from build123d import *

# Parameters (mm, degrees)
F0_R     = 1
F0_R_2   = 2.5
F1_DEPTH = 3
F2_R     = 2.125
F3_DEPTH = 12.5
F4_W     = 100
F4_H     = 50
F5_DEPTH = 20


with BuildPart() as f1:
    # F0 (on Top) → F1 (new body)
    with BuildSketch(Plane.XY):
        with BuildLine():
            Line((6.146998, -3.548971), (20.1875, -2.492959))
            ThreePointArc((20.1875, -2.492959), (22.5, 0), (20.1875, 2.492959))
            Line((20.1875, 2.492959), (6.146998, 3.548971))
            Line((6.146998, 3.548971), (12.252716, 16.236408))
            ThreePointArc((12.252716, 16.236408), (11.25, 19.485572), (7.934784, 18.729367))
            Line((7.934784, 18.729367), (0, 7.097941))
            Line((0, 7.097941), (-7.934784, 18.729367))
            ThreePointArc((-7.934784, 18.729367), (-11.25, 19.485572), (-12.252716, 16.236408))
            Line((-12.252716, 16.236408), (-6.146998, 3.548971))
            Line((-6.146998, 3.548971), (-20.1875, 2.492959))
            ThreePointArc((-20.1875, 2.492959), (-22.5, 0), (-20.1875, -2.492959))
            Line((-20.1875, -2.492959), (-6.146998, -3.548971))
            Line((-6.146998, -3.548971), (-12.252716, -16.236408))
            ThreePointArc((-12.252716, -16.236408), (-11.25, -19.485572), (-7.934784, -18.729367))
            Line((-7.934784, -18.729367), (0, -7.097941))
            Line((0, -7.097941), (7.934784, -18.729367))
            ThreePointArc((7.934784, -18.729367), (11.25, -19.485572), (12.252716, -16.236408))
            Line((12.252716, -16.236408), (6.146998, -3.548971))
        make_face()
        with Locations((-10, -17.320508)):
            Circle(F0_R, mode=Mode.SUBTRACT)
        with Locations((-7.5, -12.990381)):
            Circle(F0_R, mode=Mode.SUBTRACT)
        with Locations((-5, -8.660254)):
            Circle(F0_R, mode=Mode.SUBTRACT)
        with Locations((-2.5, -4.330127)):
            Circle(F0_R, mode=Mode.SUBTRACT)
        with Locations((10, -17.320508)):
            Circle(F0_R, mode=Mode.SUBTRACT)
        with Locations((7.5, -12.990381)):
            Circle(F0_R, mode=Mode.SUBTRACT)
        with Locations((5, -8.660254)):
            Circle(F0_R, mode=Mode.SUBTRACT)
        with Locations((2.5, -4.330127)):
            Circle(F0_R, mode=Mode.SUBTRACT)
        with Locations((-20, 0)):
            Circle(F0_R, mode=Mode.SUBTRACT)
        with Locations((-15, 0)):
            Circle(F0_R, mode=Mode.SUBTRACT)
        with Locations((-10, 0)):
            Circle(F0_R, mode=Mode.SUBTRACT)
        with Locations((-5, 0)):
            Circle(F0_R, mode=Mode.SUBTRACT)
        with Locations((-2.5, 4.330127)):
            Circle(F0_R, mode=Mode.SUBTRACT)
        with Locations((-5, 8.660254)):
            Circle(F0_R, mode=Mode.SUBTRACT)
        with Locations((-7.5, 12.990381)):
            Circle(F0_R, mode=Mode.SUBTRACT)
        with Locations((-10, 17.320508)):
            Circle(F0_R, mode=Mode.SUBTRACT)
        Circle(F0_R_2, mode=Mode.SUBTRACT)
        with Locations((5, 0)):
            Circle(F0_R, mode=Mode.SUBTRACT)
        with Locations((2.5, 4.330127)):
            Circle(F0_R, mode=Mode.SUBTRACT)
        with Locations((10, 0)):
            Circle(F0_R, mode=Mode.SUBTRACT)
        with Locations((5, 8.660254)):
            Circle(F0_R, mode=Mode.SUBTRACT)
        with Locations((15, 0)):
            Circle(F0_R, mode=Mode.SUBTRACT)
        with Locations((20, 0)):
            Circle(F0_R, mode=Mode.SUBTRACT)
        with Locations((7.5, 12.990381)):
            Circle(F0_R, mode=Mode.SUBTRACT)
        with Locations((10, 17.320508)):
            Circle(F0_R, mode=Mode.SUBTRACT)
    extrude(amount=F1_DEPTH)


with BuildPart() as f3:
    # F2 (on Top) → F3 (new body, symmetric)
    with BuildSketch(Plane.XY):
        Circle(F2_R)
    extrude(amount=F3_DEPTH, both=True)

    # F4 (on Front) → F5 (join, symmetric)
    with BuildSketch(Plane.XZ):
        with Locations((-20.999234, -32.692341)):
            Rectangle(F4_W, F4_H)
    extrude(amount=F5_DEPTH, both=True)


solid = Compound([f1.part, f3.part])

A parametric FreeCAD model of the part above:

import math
import FreeCAD as App
import Part
import Sketcher

V = App.Vector


def add_polygon(sketch, points):
    """Adds a closed chain of lines whose ends are joined by coincident constraints."""
    first, n = sketch.GeometryCount, len(points)
    for a, b in zip(points, points[1:] + points[:1]):
        sketch.addGeometry(Part.LineSegment(App.Vector(*a, 0), App.Vector(*b, 0)), False)
    for i in range(n):
        sketch.addConstraint(Sketcher.Constraint("Coincident", first + i, 2, first + (i + 1) % n, 1))

doc = App.newDocument("Part")
body = doc.addObject("PartDesign::Body", "Body")

sketch1 = doc.addObject("Sketcher::SketchObject", "Sketch")
body.addObject(sketch1)
sketch1.AttachmentSupport = (doc.XY_Plane, [""])
sketch1.MapMode = "FlatFace"
sketch1.addGeometry([
    Part.LineSegment(V(6.146998, -3.548971, 0), V(20.1875, -2.492959, 0)),
    Part.ArcOfCircle(Part.Circle(V(20, 0, 0), V(0, 0, 1), 2.5), math.radians(-85.698774), math.radians(85.698774)),
    Part.LineSegment(V(20.1875, 2.492959, 0), V(6.146998, 3.548971, 0)),
    Part.LineSegment(V(6.146998, 3.548971, 0), V(12.252716, 16.236408, 0)),
    Part.ArcOfCircle(Part.Circle(V(10, 17.320508, 0), V(0, 0, 1), 2.5), math.radians(-25.698785), math.radians(145.698789)),
    Part.LineSegment(V(7.934784, 18.729367, 0), V(0, 7.097941, 0)),
    Part.LineSegment(V(0, 7.097941, 0), V(-7.934784, 18.729367, 0)),
    Part.ArcOfCircle(Part.Circle(V(-10, 17.320508, 0), V(0, 0, 1), 2.5), math.radians(34.301211), math.radians(205.698785)),
    Part.LineSegment(V(-12.252716, 16.236408, 0), V(-6.146998, 3.548971, 0)),
    Part.LineSegment(V(-6.146998, 3.548971, 0), V(-20.1875, 2.492959, 0)),
    Part.ArcOfCircle(Part.Circle(V(-20, 0, 0), V(0, 0, 1), 2.5), math.radians(94.301226), math.radians(265.698774)),
    Part.LineSegment(V(-20.1875, -2.492959, 0), V(-6.146998, -3.548971, 0)),
    Part.LineSegment(V(-6.146998, -3.548971, 0), V(-12.252716, -16.236408, 0)),
    Part.ArcOfCircle(Part.Circle(V(-10, -17.320508, 0), V(0, 0, 1), 2.5), math.radians(154.301215), math.radians(325.698789)),
    Part.LineSegment(V(-7.934784, -18.729367, 0), V(0, -7.097941, 0)),
    Part.LineSegment(V(0, -7.097941, 0), V(7.934784, -18.729367, 0)),
    Part.ArcOfCircle(Part.Circle(V(10, -17.320508, 0), V(0, 0, 1), 2.5), math.radians(-145.698789), math.radians(25.698785)),
    Part.LineSegment(V(12.252716, -16.236408, 0), V(6.146998, -3.548971, 0)),
    Part.Circle(V(-10, -17.320508, 0), V(0, 0, 1), 1),
    Part.Circle(V(-7.5, -12.990381, 0), V(0, 0, 1), 1),
    Part.Circle(V(-5, -8.660254, 0), V(0, 0, 1), 1),
    Part.Circle(V(-2.5, -4.330127, 0), V(0, 0, 1), 1),
    Part.Circle(V(10, -17.320508, 0), V(0, 0, 1), 1),
    Part.Circle(V(7.5, -12.990381, 0), V(0, 0, 1), 1),
    Part.Circle(V(5, -8.660254, 0), V(0, 0, 1), 1),
    Part.Circle(V(2.5, -4.330127, 0), V(0, 0, 1), 1),
    Part.Circle(V(-20, 0, 0), V(0, 0, 1), 1),
    Part.Circle(V(-15, 0, 0), V(0, 0, 1), 1),
    Part.Circle(V(-10, 0, 0), V(0, 0, 1), 1),
    Part.Circle(V(-5, 0, 0), V(0, 0, 1), 1),
    Part.Circle(V(-2.5, 4.330127, 0), V(0, 0, 1), 1),
    Part.Circle(V(-5, 8.660254, 0), V(0, 0, 1), 1),
    Part.Circle(V(-7.5, 12.990381, 0), V(0, 0, 1), 1),
    Part.Circle(V(-10, 17.320508, 0), V(0, 0, 1), 1),
    Part.Circle(V(0, 0, 0), V(0, 0, 1), 2.5),
    Part.Circle(V(5, 0, 0), V(0, 0, 1), 1),
    Part.Circle(V(2.5, 4.330127, 0), V(0, 0, 1), 1),
    Part.Circle(V(10, 0, 0), V(0, 0, 1), 1),
    Part.Circle(V(5, 8.660254, 0), V(0, 0, 1), 1),
    Part.Circle(V(15, 0, 0), V(0, 0, 1), 1),
    Part.Circle(V(20, 0, 0), V(0, 0, 1), 1),
    Part.Circle(V(7.5, 12.990381, 0), V(0, 0, 1), 1),
    Part.Circle(V(10, 17.320508, 0), V(0, 0, 1), 1),
], False)
sketch1.addConstraint([
    Sketcher.Constraint("Tangent", 0, 2, 1, 1),
    Sketcher.Constraint("Tangent", 1, 2, 2, 1),
    Sketcher.Constraint("Coincident", 2, 2, 3, 1),
    Sketcher.Constraint("Tangent", 3, 2, 4, 1),
    Sketcher.Constraint("Tangent", 4, 2, 5, 1),
    Sketcher.Constraint("Coincident", 5, 2, 6, 1),
    Sketcher.Constraint("Tangent", 6, 2, 7, 1),
    Sketcher.Constraint("Tangent", 7, 2, 8, 1),
    Sketcher.Constraint("Coincident", 8, 2, 9, 1),
    Sketcher.Constraint("Tangent", 9, 2, 10, 1),
    Sketcher.Constraint("Tangent", 10, 2, 11, 1),
    Sketcher.Constraint("Coincident", 11, 2, 12, 1),
    Sketcher.Constraint("Tangent", 12, 2, 13, 1),
    Sketcher.Constraint("Tangent", 13, 2, 14, 1),
    Sketcher.Constraint("Coincident", 14, 2, 15, 1),
    Sketcher.Constraint("Tangent", 15, 2, 16, 1),
    Sketcher.Constraint("Tangent", 16, 2, 17, 1),
    Sketcher.Constraint("Coincident", 17, 2, 0, 1),
    Sketcher.Constraint("Coincident", 34, 3, -1, 1),
    Sketcher.Constraint("Coincident", 18, 3, 13, 3),
    Sketcher.Constraint("Coincident", 22, 3, 16, 3),
    Sketcher.Constraint("Coincident", 26, 3, 10, 3),
    Sketcher.Constraint("Coincident", 33, 3, 7, 3),
    Sketcher.Constraint("Coincident", 40, 3, 1, 3),
    Sketcher.Constraint("Coincident", 42, 3, 4, 3),
    Sketcher.Constraint("Equal", 1, 4),
    Sketcher.Constraint("Equal", 4, 7),
    Sketcher.Constraint("Equal", 7, 10),
    Sketcher.Constraint("Equal", 10, 13),
    Sketcher.Constraint("Equal", 13, 16),
    Sketcher.Constraint("Equal", 18, 19),
    Sketcher.Constraint("Equal", 19, 20),
    Sketcher.Constraint("Equal", 20, 21),
    Sketcher.Constraint("Equal", 21, 22),
    Sketcher.Constraint("Equal", 22, 23),
    Sketcher.Constraint("Equal", 23, 24),
    Sketcher.Constraint("Equal", 24, 25),
    Sketcher.Constraint("Equal", 25, 26),
    Sketcher.Constraint("Equal", 26, 27),
    Sketcher.Constraint("Equal", 27, 28),
    Sketcher.Constraint("Equal", 28, 29),
    Sketcher.Constraint("Equal", 29, 30),
    Sketcher.Constraint("Equal", 30, 31),
    Sketcher.Constraint("Equal", 31, 32),
    Sketcher.Constraint("Equal", 32, 33),
    Sketcher.Constraint("Equal", 16, 34),
    Sketcher.Constraint("Equal", 33, 35),
    Sketcher.Constraint("Equal", 35, 36),
    Sketcher.Constraint("Equal", 36, 37),
    Sketcher.Constraint("Equal", 37, 38),
    Sketcher.Constraint("Equal", 38, 39),
    Sketcher.Constraint("Equal", 39, 40),
    Sketcher.Constraint("Equal", 40, 41),
    Sketcher.Constraint("Equal", 41, 42),
    Sketcher.Constraint("Symmetric", 1, 3, 10, 3, -1, 1),
    Sketcher.Constraint("Symmetric", 4, 3, 13, 3, -1, 1),
    Sketcher.Constraint("Symmetric", 7, 3, 16, 3, -1, 1),
    Sketcher.Constraint("Symmetric", 25, 3, 30, 3, -1, 1),
    Sketcher.Constraint("Symmetric", 24, 3, 31, 3, -1, 1),
    Sketcher.Constraint("Symmetric", 23, 3, 32, 3, -1, 1),
    Sketcher.Constraint("Symmetric", 29, 3, 35, 3, -1, 1),
    Sketcher.Constraint("Symmetric", 21, 3, 36, 3, -1, 1),
    Sketcher.Constraint("Symmetric", 28, 3, 37, 3, -1, 1),
    Sketcher.Constraint("Symmetric", 20, 3, 38, 3, -1, 1),
    Sketcher.Constraint("Symmetric", 27, 3, 39, 3, -1, 1),
    Sketcher.Constraint("Symmetric", 19, 3, 41, 3, -1, 1),
    Sketcher.Constraint("Symmetric", 2, 2, 11, 2, -1, 1),
    Sketcher.Constraint("Symmetric", 5, 2, 14, 2, -1, 1),
    Sketcher.Constraint("Symmetric", 8, 2, 17, 2, -1, 1),
    Sketcher.Constraint("Symmetric", 4, 3, 7, 3, -2),
    Sketcher.Constraint("Symmetric", 19, 3, 23, 3, -2),
    Sketcher.Constraint("Symmetric", 20, 3, 24, 3, -2),
    Sketcher.Constraint("Symmetric", 21, 3, 25, 3, -2),
    Sketcher.Constraint("Symmetric", 2, 2, 8, 2, -2),
    Sketcher.Constraint("PointOnObject", 1, 3, -1),
    Sketcher.Constraint("PointOnObject", 27, 3, -1),
    Sketcher.Constraint("PointOnObject", 28, 3, -1),
    Sketcher.Constraint("PointOnObject", 29, 3, -1),
    Sketcher.Constraint("PointOnObject", 5, 2, -2),
    Sketcher.Constraint("Vertical", 18, 3, 28, 3),
    Sketcher.Constraint("Vertical", 20, 3, 29, 3),
    Sketcher.Constraint("Equal", 2, 3),
    Sketcher.Constraint("Equal", 3, 5),
    Sketcher.Constraint("Diameter", 18, 2.0),
    Sketcher.Constraint("Diameter", 34, 5.0),
    Sketcher.Constraint("DistanceX", -1, 1, 1, 3, 20.0),
    Sketcher.Constraint("DistanceX", -1, 1, 4, 3, 10.0),
    Sketcher.Constraint("DistanceX", 20, 3, -1, 1, 5.0),
    Sketcher.Constraint("DistanceX", 27, 3, -1, 1, 15.0),
    Sketcher.Constraint("DistanceX", 19, 3, 21, 3, 5.0),
    Sketcher.Constraint("DistanceX", 21, 3, 23, 3, 10.0),
    Sketcher.Constraint("DistanceX", 36, 3, 2, 2, 3.646998),
    Sketcher.Constraint("DistanceX", -1, 1, 0, 2, 20.1875),
    Sketcher.Constraint("DistanceY", 19, 3, -1, 1, 12.990381),
    Sketcher.Constraint("DistanceY", 18, 3, 21, 3, 12.990381),
    Sketcher.Constraint("DistanceY", 20, 3, 30, 3, 12.990381),
])
pad1 = doc.addObject("PartDesign::Pad", "Pad")
body.addObject(pad1)
pad1.Profile = sketch1
pad1.Length = 3
body2 = doc.addObject("PartDesign::Body", "Body001")

sketch2 = doc.addObject("Sketcher::SketchObject", "Sketch001")
body2.addObject(sketch2)
sketch2.AttachmentSupport = (doc.getObject("XY_Plane001"), [""])
sketch2.MapMode = "FlatFace"
sketch2.addGeometry(Part.Circle(V(0, 0, 0), V(0, 0, 1), 2.125), False)
sketch2.addConstraint([
    Sketcher.Constraint("Coincident", 0, 3, -1, 1),
    Sketcher.Constraint("Diameter", 0, 4.25),
])
pad2 = doc.addObject("PartDesign::Pad", "Pad001")
body2.addObject(pad2)
pad2.Profile = sketch2
pad2.Length = 25
pad2.Midplane = True

sketch3 = doc.addObject("Sketcher::SketchObject", "Sketch002")
body2.addObject(sketch3)
sketch3.AttachmentSupport = (doc.getObject("XZ_Plane001"), [""])
sketch3.MapMode = "FlatFace"
add_polygon(sketch3, [(-70.999234, -7.692341), (-70.999234, -57.692341), (29.000766, -57.692341), (29.000766, -7.692341)])
sketch3.addConstraint([
    Sketcher.Constraint("Vertical", 0),
    Sketcher.Constraint("Horizontal", 1),
    Sketcher.Constraint("Vertical", 2),
    Sketcher.Constraint("Horizontal", 3),
    Sketcher.Constraint("DistanceX", 1, 1, 1, 2, 100.0),
    Sketcher.Constraint("DistanceY", 0, 2, 0, 1, 50.0),
    Sketcher.Constraint("DistanceY", 0, 2, -1, 1, 57.692341),
    Sketcher.Constraint("DistanceX", 0, 2, -1, 1, 70.999234),
])
pad3 = doc.addObject("PartDesign::Pad", "Pad002")
body2.addObject(pad3)
pad3.Profile = sketch3
pad3.Length = 40
pad3.Midplane = True

doc.recompute()
